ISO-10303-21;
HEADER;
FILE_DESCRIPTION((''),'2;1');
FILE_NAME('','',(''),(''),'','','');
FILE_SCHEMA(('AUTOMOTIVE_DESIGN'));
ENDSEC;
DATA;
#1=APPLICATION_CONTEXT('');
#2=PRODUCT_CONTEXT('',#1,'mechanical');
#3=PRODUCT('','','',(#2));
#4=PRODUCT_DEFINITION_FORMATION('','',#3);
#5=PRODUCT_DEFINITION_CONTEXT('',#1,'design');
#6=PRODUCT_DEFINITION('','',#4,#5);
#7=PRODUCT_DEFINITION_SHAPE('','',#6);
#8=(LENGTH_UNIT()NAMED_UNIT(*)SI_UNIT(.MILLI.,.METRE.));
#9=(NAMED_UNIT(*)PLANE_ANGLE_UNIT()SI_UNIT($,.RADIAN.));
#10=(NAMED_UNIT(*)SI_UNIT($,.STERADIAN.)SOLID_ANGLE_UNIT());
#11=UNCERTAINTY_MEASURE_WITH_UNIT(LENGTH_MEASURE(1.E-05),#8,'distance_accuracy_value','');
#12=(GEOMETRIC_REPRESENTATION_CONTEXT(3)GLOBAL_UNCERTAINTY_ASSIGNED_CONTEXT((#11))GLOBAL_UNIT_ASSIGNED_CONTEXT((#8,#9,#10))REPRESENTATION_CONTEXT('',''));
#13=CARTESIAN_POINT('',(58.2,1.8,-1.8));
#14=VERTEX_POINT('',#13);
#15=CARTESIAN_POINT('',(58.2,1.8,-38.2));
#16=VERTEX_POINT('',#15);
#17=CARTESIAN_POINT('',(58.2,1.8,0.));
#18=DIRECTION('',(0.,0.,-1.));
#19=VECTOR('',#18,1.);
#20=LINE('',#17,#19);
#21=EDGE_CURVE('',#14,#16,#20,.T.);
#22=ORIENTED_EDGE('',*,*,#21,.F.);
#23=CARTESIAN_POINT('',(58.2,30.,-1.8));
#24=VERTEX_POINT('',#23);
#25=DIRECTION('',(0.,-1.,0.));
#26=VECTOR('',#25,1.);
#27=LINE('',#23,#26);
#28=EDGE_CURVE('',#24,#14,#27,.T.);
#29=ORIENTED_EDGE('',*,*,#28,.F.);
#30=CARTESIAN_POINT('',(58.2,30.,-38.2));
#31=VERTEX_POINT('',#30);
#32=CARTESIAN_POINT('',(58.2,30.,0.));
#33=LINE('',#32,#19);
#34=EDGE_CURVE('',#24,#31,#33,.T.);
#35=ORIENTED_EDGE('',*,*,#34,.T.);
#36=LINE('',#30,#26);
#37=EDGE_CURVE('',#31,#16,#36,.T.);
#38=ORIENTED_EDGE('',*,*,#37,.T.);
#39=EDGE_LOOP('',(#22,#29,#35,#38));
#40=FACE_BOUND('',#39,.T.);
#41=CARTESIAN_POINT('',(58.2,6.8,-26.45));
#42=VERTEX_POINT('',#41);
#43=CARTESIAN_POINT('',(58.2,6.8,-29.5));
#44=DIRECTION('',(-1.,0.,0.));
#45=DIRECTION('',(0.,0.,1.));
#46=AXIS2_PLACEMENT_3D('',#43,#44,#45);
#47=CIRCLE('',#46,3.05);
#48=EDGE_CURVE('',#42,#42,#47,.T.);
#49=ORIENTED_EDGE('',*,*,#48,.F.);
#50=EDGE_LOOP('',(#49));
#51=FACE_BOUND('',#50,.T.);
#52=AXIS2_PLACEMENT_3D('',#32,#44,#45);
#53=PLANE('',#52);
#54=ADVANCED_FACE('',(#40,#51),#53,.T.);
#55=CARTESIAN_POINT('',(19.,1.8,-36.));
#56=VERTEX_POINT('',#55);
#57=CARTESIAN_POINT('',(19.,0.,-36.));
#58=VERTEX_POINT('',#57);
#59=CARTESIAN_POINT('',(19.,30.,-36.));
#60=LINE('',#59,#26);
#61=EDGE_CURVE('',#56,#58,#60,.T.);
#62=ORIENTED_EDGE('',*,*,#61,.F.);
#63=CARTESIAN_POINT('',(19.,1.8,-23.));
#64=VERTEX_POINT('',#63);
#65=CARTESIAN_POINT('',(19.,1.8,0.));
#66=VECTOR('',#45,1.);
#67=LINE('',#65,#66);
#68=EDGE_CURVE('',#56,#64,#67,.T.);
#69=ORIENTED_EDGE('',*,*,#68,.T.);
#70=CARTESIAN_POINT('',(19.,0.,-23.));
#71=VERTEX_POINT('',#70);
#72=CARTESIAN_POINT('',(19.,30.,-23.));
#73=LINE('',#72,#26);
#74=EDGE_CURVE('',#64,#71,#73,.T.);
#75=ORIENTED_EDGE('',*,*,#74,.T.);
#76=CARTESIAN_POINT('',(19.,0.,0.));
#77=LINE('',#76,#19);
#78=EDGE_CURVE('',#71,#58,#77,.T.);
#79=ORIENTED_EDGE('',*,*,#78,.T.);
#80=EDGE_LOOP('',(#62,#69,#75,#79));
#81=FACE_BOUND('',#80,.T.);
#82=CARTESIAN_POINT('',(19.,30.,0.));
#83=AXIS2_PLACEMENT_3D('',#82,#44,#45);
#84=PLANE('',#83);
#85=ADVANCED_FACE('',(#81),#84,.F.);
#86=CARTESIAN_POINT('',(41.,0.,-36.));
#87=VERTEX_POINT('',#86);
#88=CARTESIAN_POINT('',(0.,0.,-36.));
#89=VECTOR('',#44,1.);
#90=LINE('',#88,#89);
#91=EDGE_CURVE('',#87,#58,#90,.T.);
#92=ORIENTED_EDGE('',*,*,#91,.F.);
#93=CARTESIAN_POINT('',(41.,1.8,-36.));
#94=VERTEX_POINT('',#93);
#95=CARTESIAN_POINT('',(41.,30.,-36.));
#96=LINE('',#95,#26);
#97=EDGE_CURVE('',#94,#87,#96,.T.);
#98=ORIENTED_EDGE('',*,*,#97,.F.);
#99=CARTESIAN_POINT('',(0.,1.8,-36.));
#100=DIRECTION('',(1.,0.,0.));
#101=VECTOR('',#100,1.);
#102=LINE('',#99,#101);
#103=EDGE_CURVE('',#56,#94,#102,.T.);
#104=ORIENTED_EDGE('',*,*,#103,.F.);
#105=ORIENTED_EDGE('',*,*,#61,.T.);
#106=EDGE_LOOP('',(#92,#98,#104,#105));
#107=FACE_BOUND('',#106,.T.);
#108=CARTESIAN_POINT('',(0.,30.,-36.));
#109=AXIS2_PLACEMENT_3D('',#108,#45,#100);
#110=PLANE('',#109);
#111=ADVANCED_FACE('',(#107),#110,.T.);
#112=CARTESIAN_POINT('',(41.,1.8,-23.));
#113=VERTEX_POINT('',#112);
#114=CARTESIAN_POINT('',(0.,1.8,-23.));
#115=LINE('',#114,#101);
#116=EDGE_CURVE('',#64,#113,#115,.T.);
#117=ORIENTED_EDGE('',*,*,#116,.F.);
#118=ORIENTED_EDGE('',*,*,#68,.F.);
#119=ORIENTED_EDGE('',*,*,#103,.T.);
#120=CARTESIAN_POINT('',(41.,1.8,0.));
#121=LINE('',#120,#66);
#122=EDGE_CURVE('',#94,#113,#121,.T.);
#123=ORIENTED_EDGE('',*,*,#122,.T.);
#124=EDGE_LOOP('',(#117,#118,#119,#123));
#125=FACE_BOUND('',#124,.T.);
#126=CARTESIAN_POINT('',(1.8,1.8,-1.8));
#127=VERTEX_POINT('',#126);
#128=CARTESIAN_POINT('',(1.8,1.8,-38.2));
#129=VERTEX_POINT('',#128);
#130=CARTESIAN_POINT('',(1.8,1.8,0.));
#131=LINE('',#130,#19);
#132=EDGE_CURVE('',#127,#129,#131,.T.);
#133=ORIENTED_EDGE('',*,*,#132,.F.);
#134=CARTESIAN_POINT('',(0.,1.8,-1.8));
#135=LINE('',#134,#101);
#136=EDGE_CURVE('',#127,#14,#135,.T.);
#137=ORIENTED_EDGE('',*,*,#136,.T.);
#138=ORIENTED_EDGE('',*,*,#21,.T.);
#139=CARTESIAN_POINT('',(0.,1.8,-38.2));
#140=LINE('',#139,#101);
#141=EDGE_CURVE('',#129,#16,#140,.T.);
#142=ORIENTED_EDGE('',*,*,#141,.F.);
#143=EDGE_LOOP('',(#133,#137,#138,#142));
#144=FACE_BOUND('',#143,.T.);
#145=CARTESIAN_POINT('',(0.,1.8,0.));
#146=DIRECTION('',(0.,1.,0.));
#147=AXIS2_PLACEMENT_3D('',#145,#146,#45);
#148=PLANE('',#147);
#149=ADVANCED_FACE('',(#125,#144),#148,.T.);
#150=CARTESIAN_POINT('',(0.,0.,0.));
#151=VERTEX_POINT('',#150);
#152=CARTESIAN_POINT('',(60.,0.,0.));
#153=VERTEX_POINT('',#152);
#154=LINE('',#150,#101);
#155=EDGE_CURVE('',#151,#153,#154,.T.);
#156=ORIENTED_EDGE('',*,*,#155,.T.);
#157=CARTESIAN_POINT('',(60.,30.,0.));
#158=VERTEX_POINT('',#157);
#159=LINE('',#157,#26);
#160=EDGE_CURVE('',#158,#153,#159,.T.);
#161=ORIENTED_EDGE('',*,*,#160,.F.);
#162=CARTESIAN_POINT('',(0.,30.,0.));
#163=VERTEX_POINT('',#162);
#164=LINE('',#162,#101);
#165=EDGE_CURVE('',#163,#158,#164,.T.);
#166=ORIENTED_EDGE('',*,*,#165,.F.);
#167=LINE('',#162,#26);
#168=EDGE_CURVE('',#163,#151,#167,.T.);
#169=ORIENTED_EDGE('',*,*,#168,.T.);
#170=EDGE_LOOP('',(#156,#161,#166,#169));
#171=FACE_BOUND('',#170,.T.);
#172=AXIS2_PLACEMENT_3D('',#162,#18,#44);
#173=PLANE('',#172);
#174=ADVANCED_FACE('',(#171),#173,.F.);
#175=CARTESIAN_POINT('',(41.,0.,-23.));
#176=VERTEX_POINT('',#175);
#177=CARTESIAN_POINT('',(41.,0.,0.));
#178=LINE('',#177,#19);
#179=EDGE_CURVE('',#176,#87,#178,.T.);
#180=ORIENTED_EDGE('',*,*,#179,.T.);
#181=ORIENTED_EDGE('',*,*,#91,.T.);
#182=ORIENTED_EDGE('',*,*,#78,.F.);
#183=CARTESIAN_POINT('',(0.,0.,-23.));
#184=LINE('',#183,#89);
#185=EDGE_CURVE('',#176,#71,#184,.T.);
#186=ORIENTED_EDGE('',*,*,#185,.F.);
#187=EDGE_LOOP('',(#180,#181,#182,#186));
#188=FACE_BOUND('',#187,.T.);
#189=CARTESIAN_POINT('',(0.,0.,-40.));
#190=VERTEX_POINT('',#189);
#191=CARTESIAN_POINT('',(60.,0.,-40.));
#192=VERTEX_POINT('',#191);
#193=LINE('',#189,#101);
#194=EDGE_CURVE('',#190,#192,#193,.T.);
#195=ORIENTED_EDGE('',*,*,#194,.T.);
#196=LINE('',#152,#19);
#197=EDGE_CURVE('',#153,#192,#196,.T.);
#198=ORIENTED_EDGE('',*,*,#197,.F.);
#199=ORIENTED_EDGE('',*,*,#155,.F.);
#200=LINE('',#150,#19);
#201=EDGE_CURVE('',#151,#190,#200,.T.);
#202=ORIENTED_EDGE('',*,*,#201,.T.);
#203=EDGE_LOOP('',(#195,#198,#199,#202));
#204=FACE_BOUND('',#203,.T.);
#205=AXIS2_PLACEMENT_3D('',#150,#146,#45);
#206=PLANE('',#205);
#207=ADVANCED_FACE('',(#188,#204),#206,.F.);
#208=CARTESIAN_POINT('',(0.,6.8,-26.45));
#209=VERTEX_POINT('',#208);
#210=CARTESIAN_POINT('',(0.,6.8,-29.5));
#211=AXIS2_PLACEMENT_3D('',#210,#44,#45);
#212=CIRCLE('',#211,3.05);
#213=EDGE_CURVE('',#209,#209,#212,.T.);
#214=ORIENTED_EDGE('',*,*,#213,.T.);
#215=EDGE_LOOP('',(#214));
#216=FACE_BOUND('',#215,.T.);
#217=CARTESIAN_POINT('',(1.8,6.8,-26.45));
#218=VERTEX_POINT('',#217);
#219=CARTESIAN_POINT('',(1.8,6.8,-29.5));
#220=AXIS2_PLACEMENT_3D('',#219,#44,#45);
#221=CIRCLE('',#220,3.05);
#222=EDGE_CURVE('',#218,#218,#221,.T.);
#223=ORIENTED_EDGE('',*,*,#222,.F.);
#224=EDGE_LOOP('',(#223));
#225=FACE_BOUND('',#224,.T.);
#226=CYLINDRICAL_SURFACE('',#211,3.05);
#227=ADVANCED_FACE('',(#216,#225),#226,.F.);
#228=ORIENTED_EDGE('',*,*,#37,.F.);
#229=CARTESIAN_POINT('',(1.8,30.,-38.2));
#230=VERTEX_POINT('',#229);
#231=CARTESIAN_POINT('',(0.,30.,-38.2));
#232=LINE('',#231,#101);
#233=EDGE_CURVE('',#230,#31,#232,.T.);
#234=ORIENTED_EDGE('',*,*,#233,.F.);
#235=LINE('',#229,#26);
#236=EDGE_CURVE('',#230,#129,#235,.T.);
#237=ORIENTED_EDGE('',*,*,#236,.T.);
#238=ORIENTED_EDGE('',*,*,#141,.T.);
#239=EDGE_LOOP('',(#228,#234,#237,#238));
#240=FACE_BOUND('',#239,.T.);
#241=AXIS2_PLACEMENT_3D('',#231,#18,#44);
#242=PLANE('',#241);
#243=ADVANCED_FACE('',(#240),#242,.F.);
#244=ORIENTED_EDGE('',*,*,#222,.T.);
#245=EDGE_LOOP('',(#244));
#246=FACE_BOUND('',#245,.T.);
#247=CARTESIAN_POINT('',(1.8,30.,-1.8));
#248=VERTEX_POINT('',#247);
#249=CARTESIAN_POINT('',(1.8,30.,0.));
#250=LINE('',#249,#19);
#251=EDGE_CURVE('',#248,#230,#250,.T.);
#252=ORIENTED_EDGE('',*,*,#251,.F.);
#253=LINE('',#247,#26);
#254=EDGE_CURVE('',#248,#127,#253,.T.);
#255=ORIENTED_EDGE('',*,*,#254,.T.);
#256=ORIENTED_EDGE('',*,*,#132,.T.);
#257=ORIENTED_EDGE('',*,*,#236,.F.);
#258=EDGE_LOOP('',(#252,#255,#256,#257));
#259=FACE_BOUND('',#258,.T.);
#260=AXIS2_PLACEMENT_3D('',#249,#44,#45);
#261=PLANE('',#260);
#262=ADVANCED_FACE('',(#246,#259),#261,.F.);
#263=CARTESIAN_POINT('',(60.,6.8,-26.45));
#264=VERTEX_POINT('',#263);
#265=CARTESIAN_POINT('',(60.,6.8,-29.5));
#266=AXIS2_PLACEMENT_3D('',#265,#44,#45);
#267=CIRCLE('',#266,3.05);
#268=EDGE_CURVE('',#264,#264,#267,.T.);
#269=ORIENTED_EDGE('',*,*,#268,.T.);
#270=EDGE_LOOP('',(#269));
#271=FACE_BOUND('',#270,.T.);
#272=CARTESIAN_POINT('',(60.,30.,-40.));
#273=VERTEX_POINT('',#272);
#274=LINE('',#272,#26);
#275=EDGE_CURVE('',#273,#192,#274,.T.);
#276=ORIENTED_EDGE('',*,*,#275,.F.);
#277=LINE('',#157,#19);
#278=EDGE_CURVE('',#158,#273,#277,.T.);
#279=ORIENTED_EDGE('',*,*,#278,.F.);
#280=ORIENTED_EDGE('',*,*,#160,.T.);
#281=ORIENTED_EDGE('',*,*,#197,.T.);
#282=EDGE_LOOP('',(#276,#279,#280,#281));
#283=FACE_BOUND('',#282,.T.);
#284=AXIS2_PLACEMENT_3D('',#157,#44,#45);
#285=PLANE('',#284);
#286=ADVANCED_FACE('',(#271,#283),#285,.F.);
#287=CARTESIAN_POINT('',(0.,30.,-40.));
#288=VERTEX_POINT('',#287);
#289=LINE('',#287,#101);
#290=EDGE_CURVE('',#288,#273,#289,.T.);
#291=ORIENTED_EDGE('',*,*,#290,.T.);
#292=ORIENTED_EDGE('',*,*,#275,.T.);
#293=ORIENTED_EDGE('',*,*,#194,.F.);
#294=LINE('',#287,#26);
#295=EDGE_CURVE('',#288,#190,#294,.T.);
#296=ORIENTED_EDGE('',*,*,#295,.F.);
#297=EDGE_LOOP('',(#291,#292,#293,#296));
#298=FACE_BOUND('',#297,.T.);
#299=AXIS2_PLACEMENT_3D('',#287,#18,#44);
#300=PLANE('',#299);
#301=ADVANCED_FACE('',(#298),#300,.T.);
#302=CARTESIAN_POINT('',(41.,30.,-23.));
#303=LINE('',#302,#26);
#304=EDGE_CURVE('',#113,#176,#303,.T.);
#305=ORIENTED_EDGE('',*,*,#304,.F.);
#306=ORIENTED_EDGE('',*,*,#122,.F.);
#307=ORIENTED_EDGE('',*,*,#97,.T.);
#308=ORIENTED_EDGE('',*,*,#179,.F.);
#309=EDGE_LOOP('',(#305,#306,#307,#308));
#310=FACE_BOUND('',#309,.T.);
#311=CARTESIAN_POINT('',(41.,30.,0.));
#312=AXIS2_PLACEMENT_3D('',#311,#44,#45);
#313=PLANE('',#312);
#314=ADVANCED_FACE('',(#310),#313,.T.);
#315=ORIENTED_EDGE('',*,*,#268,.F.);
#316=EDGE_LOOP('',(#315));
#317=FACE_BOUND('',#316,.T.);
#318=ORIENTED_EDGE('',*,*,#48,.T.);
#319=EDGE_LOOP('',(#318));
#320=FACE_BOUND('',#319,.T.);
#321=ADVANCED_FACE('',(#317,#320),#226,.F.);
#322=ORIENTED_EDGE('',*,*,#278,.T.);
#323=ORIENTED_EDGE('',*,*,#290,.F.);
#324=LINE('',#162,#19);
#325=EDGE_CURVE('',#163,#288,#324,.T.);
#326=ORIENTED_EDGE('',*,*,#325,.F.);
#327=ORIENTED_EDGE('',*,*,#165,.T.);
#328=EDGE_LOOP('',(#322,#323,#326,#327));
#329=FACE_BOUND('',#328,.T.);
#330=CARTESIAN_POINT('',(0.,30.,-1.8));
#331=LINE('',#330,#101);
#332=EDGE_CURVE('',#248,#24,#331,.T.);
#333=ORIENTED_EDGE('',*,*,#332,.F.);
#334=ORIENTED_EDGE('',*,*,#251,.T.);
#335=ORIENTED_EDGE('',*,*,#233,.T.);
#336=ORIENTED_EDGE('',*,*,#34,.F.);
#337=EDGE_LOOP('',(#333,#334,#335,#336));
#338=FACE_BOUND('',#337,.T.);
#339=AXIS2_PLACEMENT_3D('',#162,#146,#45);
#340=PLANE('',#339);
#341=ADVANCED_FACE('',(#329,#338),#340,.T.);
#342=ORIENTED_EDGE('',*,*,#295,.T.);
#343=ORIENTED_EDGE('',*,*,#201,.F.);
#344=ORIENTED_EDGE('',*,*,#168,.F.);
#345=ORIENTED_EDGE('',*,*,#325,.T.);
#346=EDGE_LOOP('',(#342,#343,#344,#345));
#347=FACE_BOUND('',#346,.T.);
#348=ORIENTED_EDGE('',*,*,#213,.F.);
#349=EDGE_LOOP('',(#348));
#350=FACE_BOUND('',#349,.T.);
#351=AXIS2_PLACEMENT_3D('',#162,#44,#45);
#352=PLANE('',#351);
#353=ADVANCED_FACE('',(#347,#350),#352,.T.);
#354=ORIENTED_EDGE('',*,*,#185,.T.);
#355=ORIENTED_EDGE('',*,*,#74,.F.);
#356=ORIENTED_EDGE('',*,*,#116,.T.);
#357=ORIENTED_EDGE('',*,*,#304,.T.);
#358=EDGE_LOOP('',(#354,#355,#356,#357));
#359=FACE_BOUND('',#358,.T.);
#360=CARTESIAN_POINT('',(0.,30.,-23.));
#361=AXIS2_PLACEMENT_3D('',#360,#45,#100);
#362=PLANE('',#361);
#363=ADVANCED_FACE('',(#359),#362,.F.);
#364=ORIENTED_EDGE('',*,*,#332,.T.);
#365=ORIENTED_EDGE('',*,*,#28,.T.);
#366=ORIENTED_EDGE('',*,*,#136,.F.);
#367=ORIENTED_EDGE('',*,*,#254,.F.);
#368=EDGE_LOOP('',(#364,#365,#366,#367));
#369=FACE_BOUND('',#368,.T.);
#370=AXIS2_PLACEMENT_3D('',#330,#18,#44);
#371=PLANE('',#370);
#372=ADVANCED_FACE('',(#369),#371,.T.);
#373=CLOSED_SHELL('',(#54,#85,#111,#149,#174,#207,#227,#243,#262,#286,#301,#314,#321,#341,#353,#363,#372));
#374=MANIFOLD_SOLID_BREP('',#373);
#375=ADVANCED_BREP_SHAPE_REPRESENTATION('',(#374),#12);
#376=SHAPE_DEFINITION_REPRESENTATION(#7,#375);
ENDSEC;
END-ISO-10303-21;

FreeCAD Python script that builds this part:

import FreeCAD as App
import Part
import Sketcher


def faces_at(feature, points):
    """Names of the faces that lie closest to the given points."""
    faces = feature.Shape.Faces
    near = lambda p: min(range(len(faces)), key=lambda i: faces[i].distToShape(Part.Vertex(*p))[0])
    return sorted({f"Face{near(p) + 1}" for p in points})


def add_polygon(sketch, points):
    """Adds a closed chain of lines whose ends are joined by coincident constraints."""
    first, n = sketch.GeometryCount, len(points)
    for a, b in zip(points, points[1:] + points[:1]):
        sketch.addGeometry(Part.LineSegment(App.Vector(*a, 0), App.Vector(*b, 0)), False)
    for i in range(n):
        sketch.addConstraint(Sketcher.Constraint("Coincident", first + i, 2, first + (i + 1) % n, 1))

doc = App.newDocument("Part")
body = doc.addObject("PartDesign::Body", "Body")

# Sketch on XZ plane
sketch1 = body.newObject("Sketcher::SketchObject", "Sketch")
sketch1.AttachmentSupport = (doc.getObject("XZ_Plane"), [""])
sketch1.MapMode = "FlatFace"
add_polygon(sketch1, [(0, -40), (0, 0), (60, 0), (60, -40)])  # lines 0-3
sketch1.addConstraint(Sketcher.Constraint("Vertical", 0))
sketch1.addConstraint(Sketcher.Constraint("Horizontal", 1))
sketch1.addConstraint(Sketcher.Constraint("Vertical", 2))
sketch1.addConstraint(Sketcher.Constraint("Horizontal", 3))
sketch1.addConstraint(Sketcher.Constraint("Coincident", 0, 2, -1, 1))
sketch1.addConstraint(Sketcher.Constraint("DistanceX", 1, 1, 1, 2, 60.0))
sketch1.addConstraint(Sketcher.Constraint("DistanceY", 0, 1, 0, 2, 40.0))
pad1 = body.newObject("PartDesign::Pad", "Pad")
pad1.Profile = sketch1
pad1.Length = 30
pad1.Reversed = True
doc.recompute()

thickness = body.newObject("PartDesign::Thickness", "Thickness")
thickness.Base = (pad1, faces_at(pad1, [(30, 30, -20)]))
thickness.Value = 1.8
thickness.Reversed = True
thickness.Join = "Intersection"

# Sketch on XZ plane
sketch2 = body.newObject("Sketcher::SketchObject", "Sketch001")
sketch2.AttachmentSupport = (doc.getObject("XZ_Plane"), [""])
sketch2.MapMode = "FlatFace"
add_polygon(sketch2, [(19, -36), (19, -23), (41, -23), (41, -36)])  # lines 0-3
sketch2.addConstraint(Sketcher.Constraint("Vertical", 0))
sketch2.addConstraint(Sketcher.Constraint("Horizontal", 1))
sketch2.addConstraint(Sketcher.Constraint("Vertical", 2))
sketch2.addConstraint(Sketcher.Constraint("Horizontal", 3))
sketch2.addConstraint(Sketcher.Constraint("DistanceX", 1, 1, 1, 2, 22.0))
sketch2.addConstraint(Sketcher.Constraint("DistanceY", 0, 1, 0, 2, 13.0))
sketch2.addConstraint(Sketcher.Constraint("DistanceX", -1, 1, 0, 2, 19.0))
sketch2.addConstraint(Sketcher.Constraint("DistanceY", 0, 2, -1, 1, 23.0))
pocket1 = body.newObject("PartDesign::Pocket", "Pocket")
pocket1.Profile = sketch2
pocket1.Length = 30

# Sketch on YZ plane
sketch3 = body.newObject("Sketcher::SketchObject", "Sketch002")
sketch3.AttachmentSupport = (doc.getObject("YZ_Plane"), [""])
sketch3.MapMode = "FlatFace"
sketch3.addGeometry(Part.Circle(App.Vector(6.8, -29.5, 0), App.Vector(0, 0, 1), 3), False)
sketch3.addConstraint(Sketcher.Constraint("Diameter", 0, 6.1))
sketch3.addConstraint(Sketcher.Constraint("DistanceX", -1, 1, 0, 3, 6.8))
sketch3.addConstraint(Sketcher.Constraint("DistanceY", 0, 3, -1, 1, 29.5))
doc.recompute()
hole = body.newObject("PartDesign::Hole", "Hole")
hole.Profile = sketch3
hole.ThreadType = "None"
hole.Diameter = 6.1
hole.DepthType = "ThroughAll"
hole.Reversed = True

doc.recompute()
